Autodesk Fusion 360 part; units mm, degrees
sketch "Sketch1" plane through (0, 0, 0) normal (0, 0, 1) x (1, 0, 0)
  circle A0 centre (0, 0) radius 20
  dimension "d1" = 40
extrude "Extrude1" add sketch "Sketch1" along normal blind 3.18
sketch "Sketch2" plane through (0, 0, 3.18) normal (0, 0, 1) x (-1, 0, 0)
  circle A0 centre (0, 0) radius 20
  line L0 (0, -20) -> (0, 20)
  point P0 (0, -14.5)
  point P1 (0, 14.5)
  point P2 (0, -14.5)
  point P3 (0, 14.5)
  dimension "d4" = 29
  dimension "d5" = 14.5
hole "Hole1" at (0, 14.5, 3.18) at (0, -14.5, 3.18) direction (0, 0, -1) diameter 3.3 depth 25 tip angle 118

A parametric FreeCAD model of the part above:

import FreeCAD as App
import Part
import Sketcher

V = App.Vector

doc = App.newDocument("Part")
params = doc.addObject("Spreadsheet::Sheet", "Params")
for row, (alias, value) in enumerate([
    ("sketch1_diameter", "40 mm"),
    ("pad1_length", "3.18 mm"),
    ("sketch2_diameter", "3.3 mm"),
    ("hole_diameter", "3.3 mm"),
    ("hole_depth", "25 mm"),
], start=1):
    params.set(f"A{row}", alias)
    params.set(f"B{row}", "=" + value)
    params.setAlias(f"B{row}", alias)

body = doc.addObject("PartDesign::Body", "Body")

# Sketch on XY plane
sketch1 = body.newObject("Sketcher::SketchObject", "Sketch")
sketch1.AttachmentSupport = (doc.getObject("XY_Plane"), [""])
sketch1.MapMode = "FlatFace"
sketch1.addGeometry(Part.Circle(V(0, 0, 0), V(0, 0, 1), 20), False)
sketch1.addConstraint([
    Sketcher.Constraint("Coincident", 0, 3, -1, 1),
    Sketcher.Constraint("Diameter", 0, 40.0),
])
sketch1.setExpression("Constraints[1]", "Params.sketch1_diameter")
pad1 = body.newObject("PartDesign::Pad", "Pad")
pad1.Profile = sketch1
pad1.setExpression("Length", "Params.pad1_length")

# Sketch on XY plane
sketch2 = body.newObject("Sketcher::SketchObject", "Sketch001")
sketch2.AttachmentSupport = (doc.getObject("XY_Plane"), [""])
sketch2.MapMode = "FlatFace"
sketch2.AttachmentOffset = App.Placement(V(0, 0, 3.18), App.Rotation())
sketch2.addGeometry([
    Part.Circle(V(0, 14.5, 0), V(0, 0, 1), 1.6),
    Part.Circle(V(0, -14.5, 0), V(0, 0, 1), 1.6),
], False)
sketch2.addConstraint([
    Sketcher.Constraint("Equal", 0, 1),
    Sketcher.Constraint("Symmetric", 0, 3, 1, 3, -1, 1),
    Sketcher.Constraint("PointOnObject", 0, 3, -2),
    Sketcher.Constraint("Diameter", 0, 3.3),
    Sketcher.Constraint("DistanceY", 1, 3, 0, 3, 29.0),
])
sketch2.setExpression("Constraints[3]", "Params.sketch2_diameter")
doc.recompute()
hole = body.newObject("PartDesign::Hole", "Hole")
hole.Profile = sketch2
hole.ThreadType = "None"
hole.setExpression("Diameter", "Params.hole_diameter")
hole.DepthType = "Dimension"
hole.setExpression("Depth", "Params.hole_depth")
hole.DrillPoint = "Angled"
hole.DrillPointAngle = 118

doc.recompute()
